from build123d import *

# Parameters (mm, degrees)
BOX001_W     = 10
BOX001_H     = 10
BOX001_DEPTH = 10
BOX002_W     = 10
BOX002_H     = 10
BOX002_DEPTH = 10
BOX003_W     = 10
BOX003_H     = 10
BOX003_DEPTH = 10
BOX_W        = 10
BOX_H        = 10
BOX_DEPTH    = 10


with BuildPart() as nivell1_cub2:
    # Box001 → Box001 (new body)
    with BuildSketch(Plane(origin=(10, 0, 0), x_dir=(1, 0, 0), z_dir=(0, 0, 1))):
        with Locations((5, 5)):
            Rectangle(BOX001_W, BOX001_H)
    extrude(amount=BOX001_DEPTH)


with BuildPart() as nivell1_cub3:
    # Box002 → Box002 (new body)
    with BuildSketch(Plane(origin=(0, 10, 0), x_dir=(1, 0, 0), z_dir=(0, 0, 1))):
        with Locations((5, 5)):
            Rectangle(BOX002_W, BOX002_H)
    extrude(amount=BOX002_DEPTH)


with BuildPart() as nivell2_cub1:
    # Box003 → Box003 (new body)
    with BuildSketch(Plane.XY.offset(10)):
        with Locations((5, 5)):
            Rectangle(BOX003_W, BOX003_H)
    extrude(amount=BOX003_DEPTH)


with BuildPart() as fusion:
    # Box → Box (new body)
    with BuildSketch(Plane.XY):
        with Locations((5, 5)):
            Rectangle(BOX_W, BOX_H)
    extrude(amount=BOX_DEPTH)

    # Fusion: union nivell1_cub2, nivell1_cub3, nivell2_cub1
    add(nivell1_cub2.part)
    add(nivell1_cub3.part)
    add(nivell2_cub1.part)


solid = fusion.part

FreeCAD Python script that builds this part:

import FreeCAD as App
import Part
import Sketcher

V = App.Vector
Q = App.Units.Quantity

doc = App.newDocument("Part")
params = doc.addObject("Spreadsheet::Sheet", "Params")
for row, (alias, value) in enumerate([
    ("sketch1_width", "10 mm"),
    ("pad1_length", "10 mm"),
    ("sketch2_width", "10 mm"),
    ("pad2_length", "10 mm"),
    ("sketch3_width", "10 mm"),
    ("pad3_length", "10 mm"),
    ("sketch4_width", "10 mm"),
    ("pad4_length", "10 mm"),
], start=1):
    params.set(f"A{row}", alias)
    params.set(f"B{row}", "=" + value)
    params.setAlias(f"B{row}", alias)

body = doc.addObject("PartDesign::Body", "Body")

sketch1 = body.newObject("Sketcher::SketchObject", "Sketch")
sketch1.AttachmentSupport = (doc.getObject("XY_Plane"), [""])
sketch1.MapMode = "FlatFace"
sketch1.addGeometry(Part.LineSegment(V(10, 10, 0), V(10, 0, 0)), False)
sketch1.addGeometry(Part.LineSegment(V(10, 0, 0), V(20, 0, 0)), False)
sketch1.addGeometry(Part.LineSegment(V(20, 0, 0), V(20, 10, 0)), False)
sketch1.addGeometry(Part.LineSegment(V(20, 10, 0), V(10, 10, 0)), False)
sketch1.addConstraint(Sketcher.Constraint("Coincident", 0, 2, 1, 1))
sketch1.addConstraint(Sketcher.Constraint("Coincident", 1, 2, 2, 1))
sketch1.addConstraint(Sketcher.Constraint("Coincident", 2, 2, 3, 1))
sketch1.addConstraint(Sketcher.Constraint("Coincident", 3, 2, 0, 1))
sketch1.addConstraint(Sketcher.Constraint("Vertical", 0))
sketch1.addConstraint(Sketcher.Constraint("Horizontal", 1))
sketch1.addConstraint(Sketcher.Constraint("Vertical", 2))
sketch1.addConstraint(Sketcher.Constraint("Horizontal", 3))
sketch1.addConstraint(Sketcher.Constraint("PointOnObject", 0, 2, -1))
sketch1.addConstraint(Sketcher.Constraint("Equal", 3, 0))
sketch1.addConstraint(Sketcher.Constraint("DistanceX", 1, 1, 1, 2, Q("10 mm")))
sketch1.addConstraint(Sketcher.Constraint("DistanceX", -1, 1, 0, 2, Q("10 mm")))
sketch1.setExpression("Constraints[10]", "Params.sketch1_width")
pad1 = body.newObject("PartDesign::Pad", "Pad")
pad1.Profile = sketch1
pad1.setExpression("Length", "Params.pad1_length")
body2 = doc.addObject("PartDesign::Body", "Body001")

sketch2 = body2.newObject("Sketcher::SketchObject", "Sketch001")
sketch2.AttachmentSupport = (doc.getObject("XY_Plane001"), [""])
sketch2.MapMode = "FlatFace"
sketch2.addGeometry(Part.LineSegment(V(0, 20, 0), V(0, 10, 0)), False)
sketch2.addGeometry(Part.LineSegment(V(0, 10, 0), V(10, 10, 0)), False)
sketch2.addGeometry(Part.LineSegment(V(10, 10, 0), V(10, 20, 0)), False)
sketch2.addGeometry(Part.LineSegment(V(10, 20, 0), V(0, 20, 0)), False)
sketch2.addConstraint(Sketcher.Constraint("Coincident", 0, 2, 1, 1))
sketch2.addConstraint(Sketcher.Constraint("Coincident", 1, 2, 2, 1))
sketch2.addConstraint(Sketcher.Constraint("Coincident", 2, 2, 3, 1))
sketch2.addConstraint(Sketcher.Constraint("Coincident", 3, 2, 0, 1))
sketch2.addConstraint(Sketcher.Constraint("Vertical", 0))
sketch2.addConstraint(Sketcher.Constraint("Horizontal", 1))
sketch2.addConstraint(Sketcher.Constraint("Vertical", 2))
sketch2.addConstraint(Sketcher.Constraint("Horizontal", 3))
sketch2.addConstraint(Sketcher.Constraint("PointOnObject", 0, 2, -2))
sketch2.addConstraint(Sketcher.Constraint("Equal", 3, 0))
sketch2.addConstraint(Sketcher.Constraint("DistanceX", 1, 1, 1, 2, Q("10 mm")))
sketch2.addConstraint(Sketcher.Constraint("DistanceY", -1, 1, 0, 2, Q("10 mm")))
sketch2.setExpression("Constraints[10]", "Params.sketch2_width")
pad2 = body2.newObject("PartDesign::Pad", "Pad001")
pad2.Profile = sketch2
pad2.setExpression("Length", "Params.pad2_length")
body3 = doc.addObject("PartDesign::Body", "Body002")

sketch3 = body3.newObject("Sketcher::SketchObject", "Sketch002")
sketch3.AttachmentSupport = (doc.getObject("XY_Plane002"), [""])
sketch3.MapMode = "FlatFace"
sketch3.AttachmentOffset = App.Placement(V(0, 0, 10), App.Rotation())
sketch3.addGeometry(Part.LineSegment(V(0, 10, 0), V(0, 0, 0)), False)
sketch3.addGeometry(Part.LineSegment(V(0, 0, 0), V(10, 0, 0)), False)
sketch3.addGeometry(Part.LineSegment(V(10, 0, 0), V(10, 10, 0)), False)
sketch3.addGeometry(Part.LineSegment(V(10, 10, 0), V(0, 10, 0)), False)
sketch3.addConstraint(Sketcher.Constraint("Coincident", 0, 2, 1, 1))
sketch3.addConstraint(Sketcher.Constraint("Coincident", 1, 2, 2, 1))
sketch3.addConstraint(Sketcher.Constraint("Coincident", 2, 2, 3, 1))
sketch3.addConstraint(Sketcher.Constraint("Coincident", 3, 2, 0, 1))
sketch3.addConstraint(Sketcher.Constraint("Vertical", 0))
sketch3.addConstraint(Sketcher.Constraint("Horizontal", 1))
sketch3.addConstraint(Sketcher.Constraint("Vertical", 2))
sketch3.addConstraint(Sketcher.Constraint("Horizontal", 3))
sketch3.addConstraint(Sketcher.Constraint("Coincident", 0, 2, -1, 1))
sketch3.addConstraint(Sketcher.Constraint("Equal", 3, 0))
sketch3.addConstraint(Sketcher.Constraint("DistanceX", 1, 1, 1, 2, Q("10 mm")))
sketch3.setExpression("Constraints[10]", "Params.sketch3_width")
pad3 = body3.newObject("PartDesign::Pad", "Pad002")
pad3.Profile = sketch3
pad3.setExpression("Length", "Params.pad3_length")
body4 = doc.addObject("PartDesign::Body", "Body003")

sketch4 = body4.newObject("Sketcher::SketchObject", "Sketch003")
sketch4.AttachmentSupport = (doc.getObject("XY_Plane003"), [""])
sketch4.MapMode = "FlatFace"
sketch4.addGeometry(Part.LineSegment(V(0, 10, 0), V(0, 0, 0)), False)
sketch4.addGeometry(Part.LineSegment(V(0, 0, 0), V(10, 0, 0)), False)
sketch4.addGeometry(Part.LineSegment(V(10, 0, 0), V(10, 10, 0)), False)
sketch4.addGeometry(Part.LineSegment(V(10, 10, 0), V(0, 10, 0)), False)
sketch4.addConstraint(Sketcher.Constraint("Coincident", 0, 2, 1, 1))
sketch4.addConstraint(Sketcher.Constraint("Coincident", 1, 2, 2, 1))
sketch4.addConstraint(Sketcher.Constraint("Coincident", 2, 2, 3, 1))
sketch4.addConstraint(Sketcher.Constraint("Coincident", 3, 2, 0, 1))
sketch4.addConstraint(Sketcher.Constraint("Vertical", 0))
sketch4.addConstraint(Sketcher.Constraint("Horizontal", 1))
sketch4.addConstraint(Sketcher.Constraint("Vertical", 2))
sketch4.addConstraint(Sketcher.Constraint("Horizontal", 3))
sketch4.addConstraint(Sketcher.Constraint("Coincident", 0, 2, -1, 1))
sketch4.addConstraint(Sketcher.Constraint("Equal", 3, 0))
sketch4.addConstraint(Sketcher.Constraint("DistanceX", 1, 1, 1, 2, Q("10 mm")))
sketch4.setExpression("Constraints[10]", "Params.sketch4_width")
pad4 = body4.newObject("PartDesign::Pad", "Pad003")
pad4.Profile = sketch4
pad4.setExpression("Length", "Params.pad4_length")
doc.recompute()

boolean = body4.newObject("PartDesign::Boolean", "Boolean")
boolean.Type = "Fuse"
boolean.addObjects([body])
doc.recompute()

boolean2 = body4.newObject("PartDesign::Boolean", "Boolean001")
boolean2.Type = "Fuse"
boolean2.addObjects([body2])
doc.recompute()

boolean3 = body4.newObject("PartDesign::Boolean", "Boolean002")
boolean3.Type = "Fuse"
boolean3.addObjects([body3])

doc.recompute()
